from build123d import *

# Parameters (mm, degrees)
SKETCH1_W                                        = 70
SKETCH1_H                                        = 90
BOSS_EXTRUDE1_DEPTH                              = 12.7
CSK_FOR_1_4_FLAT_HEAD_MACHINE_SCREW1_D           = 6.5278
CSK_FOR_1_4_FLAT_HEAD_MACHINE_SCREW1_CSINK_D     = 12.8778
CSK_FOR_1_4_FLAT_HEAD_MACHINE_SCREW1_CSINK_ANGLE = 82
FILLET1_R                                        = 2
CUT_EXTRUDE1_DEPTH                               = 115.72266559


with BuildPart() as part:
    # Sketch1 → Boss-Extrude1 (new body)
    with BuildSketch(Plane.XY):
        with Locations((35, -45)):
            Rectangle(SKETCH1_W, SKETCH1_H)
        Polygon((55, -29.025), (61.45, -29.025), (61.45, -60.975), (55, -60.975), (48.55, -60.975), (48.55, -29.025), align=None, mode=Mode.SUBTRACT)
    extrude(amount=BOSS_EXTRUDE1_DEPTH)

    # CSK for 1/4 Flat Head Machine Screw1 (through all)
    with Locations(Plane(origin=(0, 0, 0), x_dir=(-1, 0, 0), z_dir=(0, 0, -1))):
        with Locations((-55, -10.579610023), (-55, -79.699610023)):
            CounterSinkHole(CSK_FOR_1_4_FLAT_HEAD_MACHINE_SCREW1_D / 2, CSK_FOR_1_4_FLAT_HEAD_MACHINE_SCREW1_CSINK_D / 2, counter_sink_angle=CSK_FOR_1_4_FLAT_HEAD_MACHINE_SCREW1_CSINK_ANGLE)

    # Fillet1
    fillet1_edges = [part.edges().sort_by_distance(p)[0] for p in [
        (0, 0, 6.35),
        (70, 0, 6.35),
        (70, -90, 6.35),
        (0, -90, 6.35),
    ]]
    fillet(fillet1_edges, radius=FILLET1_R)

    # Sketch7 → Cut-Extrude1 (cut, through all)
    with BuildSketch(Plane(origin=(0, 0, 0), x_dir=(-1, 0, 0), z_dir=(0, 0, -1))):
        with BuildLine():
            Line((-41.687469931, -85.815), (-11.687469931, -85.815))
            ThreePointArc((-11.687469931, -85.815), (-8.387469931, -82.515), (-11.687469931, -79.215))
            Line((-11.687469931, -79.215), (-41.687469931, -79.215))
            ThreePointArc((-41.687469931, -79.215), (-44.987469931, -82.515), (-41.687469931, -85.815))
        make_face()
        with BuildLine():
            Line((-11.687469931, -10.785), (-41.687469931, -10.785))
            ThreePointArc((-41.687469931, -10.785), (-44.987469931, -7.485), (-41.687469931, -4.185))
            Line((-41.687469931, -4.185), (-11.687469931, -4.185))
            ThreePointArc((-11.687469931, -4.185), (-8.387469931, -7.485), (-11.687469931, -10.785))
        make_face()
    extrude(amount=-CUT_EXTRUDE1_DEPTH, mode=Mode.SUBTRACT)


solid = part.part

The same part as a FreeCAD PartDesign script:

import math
import FreeCAD as App
import Part
import Sketcher
from FreeCAD import Vector


def edges_at(feature, points):
    """Names of the edges that pass closest to the given points."""
    edges = feature.Shape.Edges
    near = lambda p: min(range(len(edges)), key=lambda i: edges[i].distToShape(Part.Vertex(*p))[0])
    return sorted({f"Edge{near(p) + 1}" for p in points})

doc = App.newDocument("Part")
body = doc.addObject("PartDesign::Body", "Body")

sketch1 = body.newObject("Sketcher::SketchObject", "Sketch")
sketch1.AttachmentSupport = (doc.getObject("XY_Plane"), [""])
sketch1.MapMode = "FlatFace"
sketch1.addGeometry(Part.LineSegment(Vector(0, 0, 0), Vector(0, -90, 0)), False)
sketch1.addGeometry(Part.LineSegment(Vector(0, -90, 0), Vector(70, -90, 0)), False)
sketch1.addGeometry(Part.LineSegment(Vector(70, -90, 0), Vector(70, 0, 0)), False)
sketch1.addGeometry(Part.LineSegment(Vector(70, 0, 0), Vector(0, 0, 0)), False)
sketch1.addGeometry(Part.LineSegment(Vector(48.55, -29.025, 0), Vector(61.45, -29.025, 0)), False)
sketch1.addGeometry(Part.LineSegment(Vector(61.45, -29.025, 0), Vector(61.45, -60.975, 0)), False)
sketch1.addGeometry(Part.LineSegment(Vector(61.45, -60.975, 0), Vector(48.55, -60.975, 0)), False)
sketch1.addGeometry(Part.LineSegment(Vector(48.55, -60.975, 0), Vector(48.55, -29.025, 0)), False)
sketch1.addConstraint(Sketcher.Constraint("Coincident", 0, 2, 1, 1))
sketch1.addConstraint(Sketcher.Constraint("Coincident", 1, 2, 2, 1))
sketch1.addConstraint(Sketcher.Constraint("Coincident", 2, 2, 3, 1))
sketch1.addConstraint(Sketcher.Constraint("Coincident", 3, 2, 0, 1))
sketch1.addConstraint(Sketcher.Constraint("Coincident", 4, 2, 5, 1))
sketch1.addConstraint(Sketcher.Constraint("Coincident", 5, 2, 6, 1))
sketch1.addConstraint(Sketcher.Constraint("Coincident", 6, 2, 7, 1))
sketch1.addConstraint(Sketcher.Constraint("Coincident", 7, 2, 4, 1))
sketch1.addConstraint(Sketcher.Constraint("Vertical", 0))
sketch1.addConstraint(Sketcher.Constraint("Horizontal", 1))
sketch1.addConstraint(Sketcher.Constraint("Vertical", 2))
sketch1.addConstraint(Sketcher.Constraint("Horizontal", 3))
sketch1.addConstraint(Sketcher.Constraint("Horizontal", 4))
sketch1.addConstraint(Sketcher.Constraint("Vertical", 5))
sketch1.addConstraint(Sketcher.Constraint("Horizontal", 6))
sketch1.addConstraint(Sketcher.Constraint("Vertical", 7))
sketch1.addConstraint(Sketcher.Constraint("Coincident", 3, 2, -1, 1))
sketch1.addConstraint(Sketcher.Constraint("DistanceX", 1, 1, 1, 2, 70.0))
sketch1.addConstraint(Sketcher.Constraint("DistanceY", 0, 2, 0, 1, 90.0))
sketch1.addConstraint(Sketcher.Constraint("DistanceX", 4, 1, 4, 2, 12.9))
sketch1.addConstraint(Sketcher.Constraint("DistanceY", 5, 2, 5, 1, 31.95))
sketch1.addConstraint(Sketcher.Constraint("DistanceX", -1, 1, 4, 2, 61.45))
sketch1.addConstraint(Sketcher.Constraint("DistanceY", 4, 2, -1, 1, 29.025))
pad1 = body.newObject("PartDesign::Pad", "Pad")
pad1.Profile = sketch1
pad1.Length = 12.7

sketch2 = body.newObject("Sketcher::SketchObject", "Sketch001")
sketch2.AttachmentSupport = (doc.getObject("XY_Plane"), [""])
sketch2.MapMode = "FlatFace"
sketch2.addGeometry(Part.Circle(Vector(55, -10.57961, 0), Vector(0, 0, 1), 3.2639), False)
sketch2.addGeometry(Part.Circle(Vector(55, -79.69961, 0), Vector(0, 0, 1), 3.2639), False)
sketch2.addConstraint(Sketcher.Constraint("Equal", 0, 1))
sketch2.addConstraint(Sketcher.Constraint("Vertical", 0, 3, 1, 3))
sketch2.addConstraint(Sketcher.Constraint("DistanceX", -1, 1, 0, 3, 55.0))
sketch2.addConstraint(Sketcher.Constraint("Diameter", 0, 6.5278))
sketch2.addConstraint(Sketcher.Constraint("DistanceY", 1, 3, 0, 3, 69.12))
sketch2.addConstraint(Sketcher.Constraint("DistanceY", 0, 3, -1, 1, 10.57961))
doc.recompute()
hole = body.newObject("PartDesign::Hole", "Hole")
hole.Profile = sketch2
hole.ThreadType = "None"
hole.Diameter = 6.5278
hole.DepthType = "ThroughAll"
hole.HoleCutType = "Countersink"
hole.HoleCutDiameter = 12.8778
hole.HoleCutCountersinkAngle = 82
hole.Reversed = True
doc.recompute()

fillet = body.newObject("PartDesign::Fillet", "Fillet")
fillet.Base = (hole, edges_at(hole, [
    (0, 0, 6.35),
    (70, 0, 6.35),
    (70, -90, 6.35),
    (0, -90, 6.35),
]))
fillet.Radius = 2

sketch3 = body.newObject("Sketcher::SketchObject", "Sketch002")
sketch3.AttachmentSupport = (doc.getObject("XY_Plane"), [""])
sketch3.MapMode = "FlatFace"
sketch3.addGeometry(Part.LineSegment(Vector(41.68747, -85.815, 0), Vector(11.68747, -85.815, 0)), False)
sketch3.addGeometry(Part.ArcOfCircle(Part.Circle(Vector(11.68747, -82.515, 0), Vector(0, 0, 1), 3.3), math.radians(90), math.radians(270)), False)
sketch3.addGeometry(Part.LineSegment(Vector(11.68747, -79.215, 0), Vector(41.68747, -79.215, 0)), False)
sketch3.addGeometry(Part.ArcOfCircle(Part.Circle(Vector(41.68747, -82.515, 0), Vector(0, 0, 1), 3.3), math.radians(-90), math.radians(90)), False)
sketch3.addGeometry(Part.LineSegment(Vector(41.68747, -10.785, 0), Vector(11.68747, -10.785, 0)), False)
sketch3.addGeometry(Part.ArcOfCircle(Part.Circle(Vector(11.68747, -7.485, 0), Vector(0, 0, 1), 3.3), math.radians(90), math.radians(270)), False)
sketch3.addGeometry(Part.LineSegment(Vector(11.68747, -4.185, 0), Vector(41.68747, -4.185, 0)), False)
sketch3.addGeometry(Part.ArcOfCircle(Part.Circle(Vector(41.68747, -7.485, 0), Vector(0, 0, 1), 3.3), math.radians(-90), math.radians(90)), False)
sketch3.addConstraint(Sketcher.Constraint("Tangent", 0, 2, 1, 2))
sketch3.addConstraint(Sketcher.Constraint("Tangent", 1, 1, 2, 1))
sketch3.addConstraint(Sketcher.Constraint("Tangent", 2, 2, 3, 2))
sketch3.addConstraint(Sketcher.Constraint("Tangent", 3, 1, 0, 1))
sketch3.addConstraint(Sketcher.Constraint("Tangent", 4, 2, 5, 2))
sketch3.addConstraint(Sketcher.Constraint("Tangent", 5, 1, 6, 1))
sketch3.addConstraint(Sketcher.Constraint("Tangent", 6, 2, 7, 2))
sketch3.addConstraint(Sketcher.Constraint("Tangent", 7, 1, 4, 1))
sketch3.addConstraint(Sketcher.Constraint("Horizontal", 0))
sketch3.addConstraint(Sketcher.Constraint("Horizontal", 2))
sketch3.addConstraint(Sketcher.Constraint("Horizontal", 4))
sketch3.addConstraint(Sketcher.Constraint("Horizontal", 6))
sketch3.addConstraint(Sketcher.Constraint("Equal", 3, 5))
sketch3.addConstraint(Sketcher.Constraint("Vertical", 1, 3, 5, 3))
sketch3.addConstraint(Sketcher.Constraint("Vertical", 3, 3, 7, 3))
sketch3.addConstraint(Sketcher.Constraint("Radius", 1, 3.3))
sketch3.addConstraint(Sketcher.Constraint("DistanceX", 0, 2, 0, 1, 30.0))
sketch3.addConstraint(Sketcher.Constraint("DistanceY", 1, 3, 5, 3, 75.03))
sketch3.addConstraint(Sketcher.Constraint("DistanceY", 1, 3, -1, 1, 82.515))
sketch3.addConstraint(Sketcher.Constraint("DistanceX", -1, 1, 1, 3, 11.68747))
pocket1 = body.newObject("PartDesign::Pocket", "Pocket")
pocket1.Profile = sketch3
pocket1.Type = "ThroughAll"
pocket1.Reversed = True

doc.recompute()
